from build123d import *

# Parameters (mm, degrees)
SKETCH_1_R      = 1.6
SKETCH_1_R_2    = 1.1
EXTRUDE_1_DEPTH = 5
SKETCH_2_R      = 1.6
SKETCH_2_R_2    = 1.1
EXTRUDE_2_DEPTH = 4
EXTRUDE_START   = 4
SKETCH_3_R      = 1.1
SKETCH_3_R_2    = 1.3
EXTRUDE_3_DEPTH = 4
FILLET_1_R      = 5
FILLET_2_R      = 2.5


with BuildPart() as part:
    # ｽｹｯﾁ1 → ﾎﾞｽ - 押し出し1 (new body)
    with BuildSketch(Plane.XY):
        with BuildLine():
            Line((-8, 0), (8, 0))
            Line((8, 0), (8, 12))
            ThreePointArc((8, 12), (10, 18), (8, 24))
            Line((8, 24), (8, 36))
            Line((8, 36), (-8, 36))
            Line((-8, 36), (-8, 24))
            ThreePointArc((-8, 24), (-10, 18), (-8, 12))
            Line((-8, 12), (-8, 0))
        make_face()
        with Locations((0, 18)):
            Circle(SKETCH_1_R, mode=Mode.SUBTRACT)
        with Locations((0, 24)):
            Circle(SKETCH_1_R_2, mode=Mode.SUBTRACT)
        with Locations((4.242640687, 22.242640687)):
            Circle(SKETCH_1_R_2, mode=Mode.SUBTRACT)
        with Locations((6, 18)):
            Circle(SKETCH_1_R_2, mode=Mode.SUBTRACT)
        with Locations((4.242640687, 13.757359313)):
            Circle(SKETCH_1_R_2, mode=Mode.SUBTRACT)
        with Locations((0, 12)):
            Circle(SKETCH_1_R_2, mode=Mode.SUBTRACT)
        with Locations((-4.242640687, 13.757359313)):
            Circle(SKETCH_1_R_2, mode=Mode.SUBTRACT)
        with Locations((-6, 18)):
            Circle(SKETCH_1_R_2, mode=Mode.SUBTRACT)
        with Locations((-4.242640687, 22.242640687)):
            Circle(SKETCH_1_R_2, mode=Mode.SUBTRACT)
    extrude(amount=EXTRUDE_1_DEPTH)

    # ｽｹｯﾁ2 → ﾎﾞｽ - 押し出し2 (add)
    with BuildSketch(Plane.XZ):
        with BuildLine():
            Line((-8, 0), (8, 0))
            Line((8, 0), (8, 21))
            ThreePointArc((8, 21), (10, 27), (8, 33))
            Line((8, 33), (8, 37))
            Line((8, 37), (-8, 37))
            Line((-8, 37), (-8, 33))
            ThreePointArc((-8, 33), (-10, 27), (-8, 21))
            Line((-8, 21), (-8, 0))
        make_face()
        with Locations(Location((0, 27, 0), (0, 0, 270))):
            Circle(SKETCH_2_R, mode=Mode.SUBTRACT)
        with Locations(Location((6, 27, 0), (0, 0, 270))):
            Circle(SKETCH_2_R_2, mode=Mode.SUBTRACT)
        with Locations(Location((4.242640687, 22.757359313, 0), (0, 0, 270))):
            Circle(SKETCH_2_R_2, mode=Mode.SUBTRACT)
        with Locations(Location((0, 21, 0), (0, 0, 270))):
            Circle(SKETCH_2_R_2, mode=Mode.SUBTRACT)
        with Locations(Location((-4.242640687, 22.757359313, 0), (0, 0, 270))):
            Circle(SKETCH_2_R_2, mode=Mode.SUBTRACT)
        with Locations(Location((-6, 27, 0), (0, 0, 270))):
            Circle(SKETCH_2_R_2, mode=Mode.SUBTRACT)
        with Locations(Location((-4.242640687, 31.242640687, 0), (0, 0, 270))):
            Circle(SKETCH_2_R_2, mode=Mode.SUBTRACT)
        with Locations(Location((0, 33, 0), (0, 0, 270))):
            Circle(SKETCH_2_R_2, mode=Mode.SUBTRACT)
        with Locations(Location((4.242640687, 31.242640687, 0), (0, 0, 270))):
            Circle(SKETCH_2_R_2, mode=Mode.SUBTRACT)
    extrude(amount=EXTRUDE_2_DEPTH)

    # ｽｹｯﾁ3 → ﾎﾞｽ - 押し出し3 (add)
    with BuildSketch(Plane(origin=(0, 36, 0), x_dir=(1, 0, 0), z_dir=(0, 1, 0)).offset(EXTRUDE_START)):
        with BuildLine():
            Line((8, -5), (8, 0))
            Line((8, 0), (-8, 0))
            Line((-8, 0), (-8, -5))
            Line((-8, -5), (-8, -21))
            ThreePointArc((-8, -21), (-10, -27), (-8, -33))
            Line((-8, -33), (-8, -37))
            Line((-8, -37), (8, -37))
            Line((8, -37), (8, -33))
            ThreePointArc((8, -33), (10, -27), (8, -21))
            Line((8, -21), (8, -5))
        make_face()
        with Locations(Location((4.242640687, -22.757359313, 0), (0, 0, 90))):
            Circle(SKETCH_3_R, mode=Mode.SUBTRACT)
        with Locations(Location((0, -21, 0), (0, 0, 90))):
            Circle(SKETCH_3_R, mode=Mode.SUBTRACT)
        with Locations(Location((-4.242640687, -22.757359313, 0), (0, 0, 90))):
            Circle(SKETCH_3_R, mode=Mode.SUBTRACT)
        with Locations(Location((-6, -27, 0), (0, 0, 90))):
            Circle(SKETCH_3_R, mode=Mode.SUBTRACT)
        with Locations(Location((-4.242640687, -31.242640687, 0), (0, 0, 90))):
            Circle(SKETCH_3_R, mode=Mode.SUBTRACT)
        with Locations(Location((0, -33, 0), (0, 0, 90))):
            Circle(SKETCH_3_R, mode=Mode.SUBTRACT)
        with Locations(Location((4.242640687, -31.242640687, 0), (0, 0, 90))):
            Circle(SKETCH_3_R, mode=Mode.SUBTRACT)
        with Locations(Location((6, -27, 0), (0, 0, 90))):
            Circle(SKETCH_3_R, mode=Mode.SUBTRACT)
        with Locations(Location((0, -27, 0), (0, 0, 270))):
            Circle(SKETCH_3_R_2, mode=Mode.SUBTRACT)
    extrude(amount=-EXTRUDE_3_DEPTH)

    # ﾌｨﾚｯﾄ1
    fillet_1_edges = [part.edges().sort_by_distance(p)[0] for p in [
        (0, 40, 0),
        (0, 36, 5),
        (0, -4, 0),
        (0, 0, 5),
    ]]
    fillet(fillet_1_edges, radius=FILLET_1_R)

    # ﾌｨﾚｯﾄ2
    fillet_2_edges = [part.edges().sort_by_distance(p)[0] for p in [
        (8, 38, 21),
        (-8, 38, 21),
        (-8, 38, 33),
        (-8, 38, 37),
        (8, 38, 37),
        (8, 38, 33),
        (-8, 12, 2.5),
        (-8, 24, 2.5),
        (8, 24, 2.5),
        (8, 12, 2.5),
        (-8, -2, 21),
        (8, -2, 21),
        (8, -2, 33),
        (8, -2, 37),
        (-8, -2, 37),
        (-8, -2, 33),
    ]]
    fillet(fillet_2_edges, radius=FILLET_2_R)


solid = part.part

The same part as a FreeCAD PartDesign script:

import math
import FreeCAD as App
import Part
import Sketcher

V = App.Vector


def edges_at(feature, points):
    """Names of the edges that pass closest to the given points."""
    edges = feature.Shape.Edges
    near = lambda p: min(range(len(edges)), key=lambda i: edges[i].distToShape(Part.Vertex(*p))[0])
    return sorted({f"Edge{near(p) + 1}" for p in points})

doc = App.newDocument("Part")
params = doc.addObject("Spreadsheet::Sheet", "Params")
for row, (alias, value) in enumerate([
    ("sketch1_radius", "10 mm"),
    ("sketch1_diameter", "2.2 mm"),
    ("sketch1_diameter2", "3.2 mm"),
    ("sketch1_width", "16 mm"),
    ("sketch1_height", "12 mm"),
    ("pad1_length", "5 mm"),
    ("sketch2_radius", "10 mm"),
    ("sketch2_diameter", "2.2 mm"),
    ("sketch2_diameter2", "3.2 mm"),
    ("sketch2_width", "16 mm"),
    ("sketch2_height", "21 mm"),
    ("pad2_length", "4 mm"),
    ("sketch3_radius", "10 mm"),
    ("sketch3_diameter", "2.2 mm"),
    ("sketch3_diameter2", "2.6 mm"),
    ("sketch3_width", "16 mm"),
    ("sketch3_height", "21 mm"),
    ("pad3_length", "4 mm"),
    ("fillet_radius", "5 mm"),
    ("fillet2_radius", "2.5 mm"),
], start=1):
    params.set(f"A{row}", alias)
    params.set(f"B{row}", "=" + value)
    params.setAlias(f"B{row}", alias)

body = doc.addObject("PartDesign::Body", "Body")

# Sketch on XY plane
sketch1 = body.newObject("Sketcher::SketchObject", "Sketch")
sketch1.AttachmentSupport = (doc.getObject("XY_Plane"), [""])
sketch1.MapMode = "FlatFace"
sketch1.addGeometry(Part.LineSegment(V(-8, 0, 0), V(8, 0, 0)), False)
sketch1.addGeometry(Part.LineSegment(V(8, 0, 0), V(8, 12, 0)), False)
sketch1.addGeometry(Part.ArcOfCircle(Part.Circle(V(0, 18, 0), V(0, 0, 1), 10), math.radians(-36.869898), math.radians(36.869898)), False)
sketch1.addGeometry(Part.LineSegment(V(8, 24, 0), V(8, 36, 0)), False)
sketch1.addGeometry(Part.LineSegment(V(8, 36, 0), V(-8, 36, 0)), False)
sketch1.addGeometry(Part.LineSegment(V(-8, 36, 0), V(-8, 24, 0)), False)
sketch1.addGeometry(Part.ArcOfCircle(Part.Circle(V(0, 18, 0), V(0, 0, 1), 10), math.radians(143.130102), math.radians(216.869898)), False)
sketch1.addGeometry(Part.LineSegment(V(-8, 12, 0), V(-8, 0, 0)), False)
sketch1.addGeometry(Part.Circle(V(-4.242641, 13.757359, 0), V(0, 0, 1), 1.1), False)
sketch1.addGeometry(Part.Circle(V(0, 12, 0), V(0, 0, 1), 1.1), False)
sketch1.addGeometry(Part.Circle(V(4.242641, 13.757359, 0), V(0, 0, 1), 1.1), False)
sketch1.addGeometry(Part.Circle(V(-6, 18, 0), V(0, 0, 1), 1.1), False)
sketch1.addGeometry(Part.Circle(V(-4.242641, 22.242641, 0), V(0, 0, 1), 1.1), False)
sketch1.addGeometry(Part.Circle(V(0, 18, 0), V(0, 0, 1), 1.6), False)
sketch1.addGeometry(Part.Circle(V(6, 18, 0), V(0, 0, 1), 1.1), False)
sketch1.addGeometry(Part.Circle(V(0, 24, 0), V(0, 0, 1), 1.1), False)
sketch1.addGeometry(Part.Circle(V(4.242641, 22.242641, 0), V(0, 0, 1), 1.1), False)
sketch1.addConstraint(Sketcher.Constraint("Coincident", 0, 2, 1, 1))
sketch1.addConstraint(Sketcher.Constraint("Coincident", 1, 2, 2, 1))
sketch1.addConstraint(Sketcher.Constraint("Coincident", 2, 2, 3, 1))
sketch1.addConstraint(Sketcher.Constraint("Coincident", 3, 2, 4, 1))
sketch1.addConstraint(Sketcher.Constraint("Coincident", 4, 2, 5, 1))
sketch1.addConstraint(Sketcher.Constraint("Coincident", 5, 2, 6, 1))
sketch1.addConstraint(Sketcher.Constraint("Coincident", 6, 2, 7, 1))
sketch1.addConstraint(Sketcher.Constraint("Coincident", 7, 2, 0, 1))
sketch1.addConstraint(Sketcher.Constraint("Horizontal", 0))
sketch1.addConstraint(Sketcher.Constraint("Vertical", 1))
sketch1.addConstraint(Sketcher.Constraint("Vertical", 3))
sketch1.addConstraint(Sketcher.Constraint("Horizontal", 4))
sketch1.addConstraint(Sketcher.Constraint("Vertical", 5))
sketch1.addConstraint(Sketcher.Constraint("Vertical", 7))
sketch1.addConstraint(Sketcher.Constraint("Coincident", 6, 3, 2, 3))
sketch1.addConstraint(Sketcher.Constraint("Coincident", 13, 3, 2, 3))
sketch1.addConstraint(Sketcher.Constraint("Equal", 2, 6))
sketch1.addConstraint(Sketcher.Constraint("Equal", 8, 9))
sketch1.addConstraint(Sketcher.Constraint("Equal", 9, 10))
sketch1.addConstraint(Sketcher.Constraint("Equal", 10, 11))
sketch1.addConstraint(Sketcher.Constraint("Equal", 11, 12))
sketch1.addConstraint(Sketcher.Constraint("Equal", 12, 14))
sketch1.addConstraint(Sketcher.Constraint("Equal", 14, 15))
sketch1.addConstraint(Sketcher.Constraint("Equal", 15, 16))
sketch1.addConstraint(Sketcher.Constraint("Symmetric", 0, 2, 7, 2, -1, 1))
sketch1.addConstraint(Sketcher.Constraint("Symmetric", 8, 3, 10, 3, -2))
sketch1.addConstraint(Sketcher.Constraint("Symmetric", 11, 3, 14, 3, -2))
sketch1.addConstraint(Sketcher.Constraint("Symmetric", 12, 3, 16, 3, -2))
sketch1.addConstraint(Sketcher.Constraint("Symmetric", 2, 2, 5, 2, -2))
sketch1.addConstraint(Sketcher.Constraint("PointOnObject", 9, 3, -2))
sketch1.addConstraint(Sketcher.Constraint("PointOnObject", 15, 3, -2))
sketch1.addConstraint(Sketcher.Constraint("Horizontal", 6, 3, 11, 3))
sketch1.addConstraint(Sketcher.Constraint("Horizontal", 9, 3, 1, 2))
sketch1.addConstraint(Sketcher.Constraint("Horizontal", 15, 3, 2, 2))
sketch1.addConstraint(Sketcher.Constraint("Vertical", 8, 3, 12, 3))
sketch1.addConstraint(Sketcher.Constraint("Vertical", 1, 2, 2, 2))
sketch1.addConstraint(Sketcher.Constraint("Equal", 1, 3))
sketch1.addConstraint(Sketcher.Constraint("Radius", 2, 10.0))
sketch1.addConstraint(Sketcher.Constraint("Diameter", 8, 2.2))
sketch1.addConstraint(Sketcher.Constraint("Diameter", 13, 3.2))
sketch1.addConstraint(Sketcher.Constraint("DistanceX", 0, 1, 0, 2, 16.0))
sketch1.addConstraint(Sketcher.Constraint("DistanceY", 1, 1, 1, 2, 12.0))
sketch1.addConstraint(Sketcher.Constraint("DistanceX", 11, 3, -1, 1, 6.0))
sketch1.addConstraint(Sketcher.Constraint("DistanceX", 8, 3, -1, 1, 4.242641))
sketch1.addConstraint(Sketcher.Constraint("DistanceY", -1, 1, 8, 3, 13.757359))
sketch1.addConstraint(Sketcher.Constraint("DistanceY", -1, 1, 12, 3, 22.242641))
sketch1.setExpression("Constraints[37]", "Params.sketch1_radius")
sketch1.setExpression("Constraints[38]", "Params.sketch1_diameter")
sketch1.setExpression("Constraints[39]", "Params.sketch1_diameter2")
sketch1.setExpression("Constraints[40]", "Params.sketch1_width")
sketch1.setExpression("Constraints[41]", "Params.sketch1_height")
pad1 = body.newObject("PartDesign::Pad", "Pad")
pad1.Profile = sketch1
pad1.setExpression("Length", "Params.pad1_length")

# Sketch on XZ plane
sketch2 = body.newObject("Sketcher::SketchObject", "Sketch001")
sketch2.AttachmentSupport = (doc.getObject("XZ_Plane"), [""])
sketch2.MapMode = "FlatFace"
sketch2.addGeometry(Part.LineSegment(V(-8, 0, 0), V(8, 0, 0)), False)
sketch2.addGeometry(Part.LineSegment(V(8, 0, 0), V(8, 21, 0)), False)
sketch2.addGeometry(Part.ArcOfCircle(Part.Circle(V(0, 27, 0), V(0, 0, 1), 10), math.radians(-36.869898), math.radians(36.869898)), False)
sketch2.addGeometry(Part.LineSegment(V(8, 33, 0), V(8, 37, 0)), False)
sketch2.addGeometry(Part.LineSegment(V(8, 37, 0), V(-8, 37, 0)), False)
sketch2.addGeometry(Part.LineSegment(V(-8, 37, 0), V(-8, 33, 0)), False)
sketch2.addGeometry(Part.ArcOfCircle(Part.Circle(V(0, 27, 0), V(0, 0, 1), 10), math.radians(143.130102), math.radians(216.869898)), False)
sketch2.addGeometry(Part.LineSegment(V(-8, 21, 0), V(-8, 0, 0)), False)
sketch2.addGeometry(Part.Circle(V(-4.242641, 22.757359, 0), V(0, 0, 1), 1.1), False)
sketch2.addGeometry(Part.Circle(V(0, 21, 0), V(0, 0, 1), 1.1), False)
sketch2.addGeometry(Part.Circle(V(4.242641, 22.757359, 0), V(0, 0, 1), 1.1), False)
sketch2.addGeometry(Part.Circle(V(-6, 27, 0), V(0, 0, 1), 1.1), False)
sketch2.addGeometry(Part.Circle(V(-4.242641, 31.242641, 0), V(0, 0, 1), 1.1), False)
sketch2.addGeometry(Part.Circle(V(0, 27, 0), V(0, 0, 1), 1.6), False)
sketch2.addGeometry(Part.Circle(V(6, 27, 0), V(0, 0, 1), 1.1), False)
sketch2.addGeometry(Part.Circle(V(0, 33, 0), V(0, 0, 1), 1.1), False)
sketch2.addGeometry(Part.Circle(V(4.242641, 31.242641, 0), V(0, 0, 1), 1.1), False)
sketch2.addConstraint(Sketcher.Constraint("Coincident", 0, 2, 1, 1))
sketch2.addConstraint(Sketcher.Constraint("Coincident", 1, 2, 2, 1))
sketch2.addConstraint(Sketcher.Constraint("Coincident", 2, 2, 3, 1))
sketch2.addConstraint(Sketcher.Constraint("Coincident", 3, 2, 4, 1))
sketch2.addConstraint(Sketcher.Constraint("Coincident", 4, 2, 5, 1))
sketch2.addConstraint(Sketcher.Constraint("Coincident", 5, 2, 6, 1))
sketch2.addConstraint(Sketcher.Constraint("Coincident", 6, 2, 7, 1))
sketch2.addConstraint(Sketcher.Constraint("Coincident", 7, 2, 0, 1))
sketch2.addConstraint(Sketcher.Constraint("Horizontal", 0))
sketch2.addConstraint(Sketcher.Constraint("Vertical", 1))
sketch2.addConstraint(Sketcher.Constraint("Vertical", 3))
sketch2.addConstraint(Sketcher.Constraint("Horizontal", 4))
sketch2.addConstraint(Sketcher.Constraint("Vertical", 5))
sketch2.addConstraint(Sketcher.Constraint("Vertical", 7))
sketch2.addConstraint(Sketcher.Constraint("Coincident", 6, 3, 2, 3))
sketch2.addConstraint(Sketcher.Constraint("Coincident", 13, 3, 2, 3))
sketch2.addConstraint(Sketcher.Constraint("Equal", 2, 6))
sketch2.addConstraint(Sketcher.Constraint("Equal", 8, 9))
sketch2.addConstraint(Sketcher.Constraint("Equal", 9, 10))
sketch2.addConstraint(Sketcher.Constraint("Equal", 10, 11))
sketch2.addConstraint(Sketcher.Constraint("Equal", 11, 12))
sketch2.addConstraint(Sketcher.Constraint("Equal", 12, 14))
sketch2.addConstraint(Sketcher.Constraint("Equal", 14, 15))
sketch2.addConstraint(Sketcher.Constraint("Equal", 15, 16))
sketch2.addConstraint(Sketcher.Constraint("Symmetric", 0, 2, 7, 2, -1, 1))
sketch2.addConstraint(Sketcher.Constraint("Symmetric", 8, 3, 10, 3, -2))
sketch2.addConstraint(Sketcher.Constraint("Symmetric", 11, 3, 14, 3, -2))
sketch2.addConstraint(Sketcher.Constraint("Symmetric", 12, 3, 16, 3, -2))
sketch2.addConstraint(Sketcher.Constraint("Symmetric", 2, 2, 5, 2, -2))
sketch2.addConstraint(Sketcher.Constraint("PointOnObject", 9, 3, -2))
sketch2.addConstraint(Sketcher.Constraint("PointOnObject", 15, 3, -2))
sketch2.addConstraint(Sketcher.Constraint("Horizontal", 6, 3, 11, 3))
sketch2.addConstraint(Sketcher.Constraint("Horizontal", 9, 3, 1, 2))
sketch2.addConstraint(Sketcher.Constraint("Horizontal", 15, 3, 2, 2))
sketch2.addConstraint(Sketcher.Constraint("Vertical", 8, 3, 12, 3))
sketch2.addConstraint(Sketcher.Constraint("Vertical", 1, 2, 2, 2))
sketch2.addConstraint(Sketcher.Constraint("Radius", 2, 10.0))
sketch2.addConstraint(Sketcher.Constraint("Diameter", 8, 2.2))
sketch2.addConstraint(Sketcher.Constraint("Diameter", 13, 3.2))
sketch2.addConstraint(Sketcher.Constraint("DistanceX", 0, 1, 0, 2, 16.0))
sketch2.addConstraint(Sketcher.Constraint("DistanceY", 1, 1, 1, 2, 21.0))
sketch2.addConstraint(Sketcher.Constraint("DistanceY", 3, 1, 3, 2, 4.0))
sketch2.addConstraint(Sketcher.Constraint("DistanceX", 11, 3, -1, 1, 6.0))
sketch2.addConstraint(Sketcher.Constraint("DistanceX", 8, 3, -1, 1, 4.242641))
sketch2.addConstraint(Sketcher.Constraint("DistanceY", -1, 1, 8, 3, 22.757359))
sketch2.addConstraint(Sketcher.Constraint("DistanceY", -1, 1, 12, 3, 31.242641))
sketch2.setExpression("Constraints[36]", "Params.sketch2_radius")
sketch2.setExpression("Constraints[37]", "Params.sketch2_diameter")
sketch2.setExpression("Constraints[38]", "Params.sketch2_diameter2")
sketch2.setExpression("Constraints[39]", "Params.sketch2_width")
sketch2.setExpression("Constraints[40]", "Params.sketch2_height")
pad2 = body.newObject("PartDesign::Pad", "Pad001")
pad2.Profile = sketch2
pad2.setExpression("Length", "Params.pad2_length")

# Sketch on XZ plane
sketch3 = body.newObject("Sketcher::SketchObject", "Sketch002")
sketch3.AttachmentSupport = (doc.getObject("XZ_Plane"), [""])
sketch3.MapMode = "FlatFace"
sketch3.AttachmentOffset = App.Placement(V(0, 0, -40), App.Rotation())
sketch3.addGeometry(Part.LineSegment(V(8, 0, 0), V(-8, 0, 0)), False)
sketch3.addGeometry(Part.LineSegment(V(-8, 0, 0), V(-8, 21, 0)), False)
sketch3.addGeometry(Part.ArcOfCircle(Part.Circle(V(0, 27, 0), V(0, 0, 1), 10), math.radians(143.130102), math.radians(216.869898)), False)
sketch3.addGeometry(Part.LineSegment(V(-8, 33, 0), V(-8, 37, 0)), False)
sketch3.addGeometry(Part.LineSegment(V(-8, 37, 0), V(8, 37, 0)), False)
sketch3.addGeometry(Part.LineSegment(V(8, 37, 0), V(8, 33, 0)), False)
sketch3.addGeometry(Part.ArcOfCircle(Part.Circle(V(0, 27, 0), V(0, 0, 1), 10), math.radians(-36.869898), math.radians(36.869898)), False)
sketch3.addGeometry(Part.LineSegment(V(8, 21, 0), V(8, 0, 0)), False)
sketch3.addGeometry(Part.Circle(V(-4.242641, 31.242641, 0), V(0, 0, 1), 1.1), False)
sketch3.addGeometry(Part.Circle(V(0, 33, 0), V(0, 0, 1), 1.1), False)
sketch3.addGeometry(Part.Circle(V(4.242641, 31.242641, 0), V(0, 0, 1), 1.1), False)
sketch3.addGeometry(Part.Circle(V(-6, 27, 0), V(0, 0, 1), 1.1), False)
sketch3.addGeometry(Part.Circle(V(-4.242641, 22.757359, 0), V(0, 0, 1), 1.1), False)
sketch3.addGeometry(Part.Circle(V(0, 27, 0), V(0, 0, 1), 1.3), False)
sketch3.addGeometry(Part.Circle(V(6, 27, 0), V(0, 0, 1), 1.1), False)
sketch3.addGeometry(Part.Circle(V(0, 21, 0), V(0, 0, 1), 1.1), False)
sketch3.addGeometry(Part.Circle(V(4.242641, 22.757359, 0), V(0, 0, 1), 1.1), False)
sketch3.addConstraint(Sketcher.Constraint("Coincident", 0, 2, 1, 1))
sketch3.addConstraint(Sketcher.Constraint("Coincident", 1, 2, 2, 2))
sketch3.addConstraint(Sketcher.Constraint("Coincident", 2, 1, 3, 1))
sketch3.addConstraint(Sketcher.Constraint("Coincident", 3, 2, 4, 1))
sketch3.addConstraint(Sketcher.Constraint("Coincident", 4, 2, 5, 1))
sketch3.addConstraint(Sketcher.Constraint("Coincident", 5, 2, 6, 2))
sketch3.addConstraint(Sketcher.Constraint("Coincident", 6, 1, 7, 1))
sketch3.addConstraint(Sketcher.Constraint("Coincident", 7, 2, 0, 1))
sketch3.addConstraint(Sketcher.Constraint("Horizontal", 0))
sketch3.addConstraint(Sketcher.Constraint("Vertical", 1))
sketch3.addConstraint(Sketcher.Constraint("Vertical", 3))
sketch3.addConstraint(Sketcher.Constraint("Horizontal", 4))
sketch3.addConstraint(Sketcher.Constraint("Vertical", 5))
sketch3.addConstraint(Sketcher.Constraint("Vertical", 7))
sketch3.addConstraint(Sketcher.Constraint("Coincident", 6, 3, 2, 3))
sketch3.addConstraint(Sketcher.Constraint("Coincident", 13, 3, 2, 3))
sketch3.addConstraint(Sketcher.Constraint("Equal", 2, 6))
sketch3.addConstraint(Sketcher.Constraint("Equal", 8, 9))
sketch3.addConstraint(Sketcher.Constraint("Equal", 9, 10))
sketch3.addConstraint(Sketcher.Constraint("Equal", 10, 11))
sketch3.addConstraint(Sketcher.Constraint("Equal", 11, 12))
sketch3.addConstraint(Sketcher.Constraint("Equal", 12, 14))
sketch3.addConstraint(Sketcher.Constraint("Equal", 14, 15))
sketch3.addConstraint(Sketcher.Constraint("Equal", 15, 16))
sketch3.addConstraint(Sketcher.Constraint("Symmetric", 0, 2, 7, 2, -1, 1))
sketch3.addConstraint(Sketcher.Constraint("Symmetric", 8, 3, 10, 3, -2))
sketch3.addConstraint(Sketcher.Constraint("Symmetric", 11, 3, 14, 3, -2))
sketch3.addConstraint(Sketcher.Constraint("Symmetric", 12, 3, 16, 3, -2))
sketch3.addConstraint(Sketcher.Constraint("Symmetric", 2, 1, 5, 2, -2))
sketch3.addConstraint(Sketcher.Constraint("PointOnObject", 9, 3, -2))
sketch3.addConstraint(Sketcher.Constraint("PointOnObject", 15, 3, -2))
sketch3.addConstraint(Sketcher.Constraint("Horizontal", 6, 3, 11, 3))
sketch3.addConstraint(Sketcher.Constraint("Horizontal", 15, 3, 1, 2))
sketch3.addConstraint(Sketcher.Constraint("Horizontal", 9, 3, 2, 1))
sketch3.addConstraint(Sketcher.Constraint("Vertical", 8, 3, 12, 3))
sketch3.addConstraint(Sketcher.Constraint("Vertical", 1, 2, 2, 1))
sketch3.addConstraint(Sketcher.Constraint("Radius", 2, 10.0))
sketch3.addConstraint(Sketcher.Constraint("Diameter", 8, 2.2))
sketch3.addConstraint(Sketcher.Constraint("Diameter", 13, 2.6))
sketch3.addConstraint(Sketcher.Constraint("DistanceX", 0, 2, 0, 1, 16.0))
sketch3.addConstraint(Sketcher.Constraint("DistanceY", 1, 1, 1, 2, 21.0))
sketch3.addConstraint(Sketcher.Constraint("DistanceY", 3, 1, 3, 2, 4.0))
sketch3.addConstraint(Sketcher.Constraint("DistanceX", 11, 3, -1, 1, 6.0))
sketch3.addConstraint(Sketcher.Constraint("DistanceX", 8, 3, -1, 1, 4.242641))
sketch3.addConstraint(Sketcher.Constraint("DistanceY", -1, 1, 8, 3, 31.242641))
sketch3.addConstraint(Sketcher.Constraint("DistanceY", -1, 1, 12, 3, 22.757359))
sketch3.setExpression("Constraints[36]", "Params.sketch3_radius")
sketch3.setExpression("Constraints[37]", "Params.sketch3_diameter")
sketch3.setExpression("Constraints[38]", "Params.sketch3_diameter2")
sketch3.setExpression("Constraints[39]", "Params.sketch3_width")
sketch3.setExpression("Constraints[40]", "Params.sketch3_height")
pad3 = body.newObject("PartDesign::Pad", "Pad002")
pad3.Profile = sketch3
pad3.setExpression("Length", "Params.pad3_length")
doc.recompute()

fillet = body.newObject("PartDesign::Fillet", "Fillet")
fillet.Base = (pad3, edges_at(pad3, [
    (0, 40, 0),
    (0, 36, 5),
    (0, -4, 0),
    (0, 0, 5),
]))
fillet.setExpression("Radius", "Params.fillet_radius")
doc.recompute()

fillet2 = body.newObject("PartDesign::Fillet", "Fillet001")
fillet2.Base = (fillet, edges_at(fillet, [
    (8, 38, 21),
    (-8, 38, 21),
    (-8, 38, 33),
    (-8, 38, 37),
    (8, 38, 37),
    (8, 38, 33),
    (-8, 12, 2.5),
    (-8, 24, 2.5),
    (8, 24, 2.5),
    (8, 12, 2.5),
    (-8, -2, 21),
    (8, -2, 21),
    (8, -2, 33),
    (8, -2, 37),
    (-8, -2, 37),
    (-8, -2, 33),
]))
fillet2.setExpression("Radius", "Params.fillet2_radius")

doc.recompute()
